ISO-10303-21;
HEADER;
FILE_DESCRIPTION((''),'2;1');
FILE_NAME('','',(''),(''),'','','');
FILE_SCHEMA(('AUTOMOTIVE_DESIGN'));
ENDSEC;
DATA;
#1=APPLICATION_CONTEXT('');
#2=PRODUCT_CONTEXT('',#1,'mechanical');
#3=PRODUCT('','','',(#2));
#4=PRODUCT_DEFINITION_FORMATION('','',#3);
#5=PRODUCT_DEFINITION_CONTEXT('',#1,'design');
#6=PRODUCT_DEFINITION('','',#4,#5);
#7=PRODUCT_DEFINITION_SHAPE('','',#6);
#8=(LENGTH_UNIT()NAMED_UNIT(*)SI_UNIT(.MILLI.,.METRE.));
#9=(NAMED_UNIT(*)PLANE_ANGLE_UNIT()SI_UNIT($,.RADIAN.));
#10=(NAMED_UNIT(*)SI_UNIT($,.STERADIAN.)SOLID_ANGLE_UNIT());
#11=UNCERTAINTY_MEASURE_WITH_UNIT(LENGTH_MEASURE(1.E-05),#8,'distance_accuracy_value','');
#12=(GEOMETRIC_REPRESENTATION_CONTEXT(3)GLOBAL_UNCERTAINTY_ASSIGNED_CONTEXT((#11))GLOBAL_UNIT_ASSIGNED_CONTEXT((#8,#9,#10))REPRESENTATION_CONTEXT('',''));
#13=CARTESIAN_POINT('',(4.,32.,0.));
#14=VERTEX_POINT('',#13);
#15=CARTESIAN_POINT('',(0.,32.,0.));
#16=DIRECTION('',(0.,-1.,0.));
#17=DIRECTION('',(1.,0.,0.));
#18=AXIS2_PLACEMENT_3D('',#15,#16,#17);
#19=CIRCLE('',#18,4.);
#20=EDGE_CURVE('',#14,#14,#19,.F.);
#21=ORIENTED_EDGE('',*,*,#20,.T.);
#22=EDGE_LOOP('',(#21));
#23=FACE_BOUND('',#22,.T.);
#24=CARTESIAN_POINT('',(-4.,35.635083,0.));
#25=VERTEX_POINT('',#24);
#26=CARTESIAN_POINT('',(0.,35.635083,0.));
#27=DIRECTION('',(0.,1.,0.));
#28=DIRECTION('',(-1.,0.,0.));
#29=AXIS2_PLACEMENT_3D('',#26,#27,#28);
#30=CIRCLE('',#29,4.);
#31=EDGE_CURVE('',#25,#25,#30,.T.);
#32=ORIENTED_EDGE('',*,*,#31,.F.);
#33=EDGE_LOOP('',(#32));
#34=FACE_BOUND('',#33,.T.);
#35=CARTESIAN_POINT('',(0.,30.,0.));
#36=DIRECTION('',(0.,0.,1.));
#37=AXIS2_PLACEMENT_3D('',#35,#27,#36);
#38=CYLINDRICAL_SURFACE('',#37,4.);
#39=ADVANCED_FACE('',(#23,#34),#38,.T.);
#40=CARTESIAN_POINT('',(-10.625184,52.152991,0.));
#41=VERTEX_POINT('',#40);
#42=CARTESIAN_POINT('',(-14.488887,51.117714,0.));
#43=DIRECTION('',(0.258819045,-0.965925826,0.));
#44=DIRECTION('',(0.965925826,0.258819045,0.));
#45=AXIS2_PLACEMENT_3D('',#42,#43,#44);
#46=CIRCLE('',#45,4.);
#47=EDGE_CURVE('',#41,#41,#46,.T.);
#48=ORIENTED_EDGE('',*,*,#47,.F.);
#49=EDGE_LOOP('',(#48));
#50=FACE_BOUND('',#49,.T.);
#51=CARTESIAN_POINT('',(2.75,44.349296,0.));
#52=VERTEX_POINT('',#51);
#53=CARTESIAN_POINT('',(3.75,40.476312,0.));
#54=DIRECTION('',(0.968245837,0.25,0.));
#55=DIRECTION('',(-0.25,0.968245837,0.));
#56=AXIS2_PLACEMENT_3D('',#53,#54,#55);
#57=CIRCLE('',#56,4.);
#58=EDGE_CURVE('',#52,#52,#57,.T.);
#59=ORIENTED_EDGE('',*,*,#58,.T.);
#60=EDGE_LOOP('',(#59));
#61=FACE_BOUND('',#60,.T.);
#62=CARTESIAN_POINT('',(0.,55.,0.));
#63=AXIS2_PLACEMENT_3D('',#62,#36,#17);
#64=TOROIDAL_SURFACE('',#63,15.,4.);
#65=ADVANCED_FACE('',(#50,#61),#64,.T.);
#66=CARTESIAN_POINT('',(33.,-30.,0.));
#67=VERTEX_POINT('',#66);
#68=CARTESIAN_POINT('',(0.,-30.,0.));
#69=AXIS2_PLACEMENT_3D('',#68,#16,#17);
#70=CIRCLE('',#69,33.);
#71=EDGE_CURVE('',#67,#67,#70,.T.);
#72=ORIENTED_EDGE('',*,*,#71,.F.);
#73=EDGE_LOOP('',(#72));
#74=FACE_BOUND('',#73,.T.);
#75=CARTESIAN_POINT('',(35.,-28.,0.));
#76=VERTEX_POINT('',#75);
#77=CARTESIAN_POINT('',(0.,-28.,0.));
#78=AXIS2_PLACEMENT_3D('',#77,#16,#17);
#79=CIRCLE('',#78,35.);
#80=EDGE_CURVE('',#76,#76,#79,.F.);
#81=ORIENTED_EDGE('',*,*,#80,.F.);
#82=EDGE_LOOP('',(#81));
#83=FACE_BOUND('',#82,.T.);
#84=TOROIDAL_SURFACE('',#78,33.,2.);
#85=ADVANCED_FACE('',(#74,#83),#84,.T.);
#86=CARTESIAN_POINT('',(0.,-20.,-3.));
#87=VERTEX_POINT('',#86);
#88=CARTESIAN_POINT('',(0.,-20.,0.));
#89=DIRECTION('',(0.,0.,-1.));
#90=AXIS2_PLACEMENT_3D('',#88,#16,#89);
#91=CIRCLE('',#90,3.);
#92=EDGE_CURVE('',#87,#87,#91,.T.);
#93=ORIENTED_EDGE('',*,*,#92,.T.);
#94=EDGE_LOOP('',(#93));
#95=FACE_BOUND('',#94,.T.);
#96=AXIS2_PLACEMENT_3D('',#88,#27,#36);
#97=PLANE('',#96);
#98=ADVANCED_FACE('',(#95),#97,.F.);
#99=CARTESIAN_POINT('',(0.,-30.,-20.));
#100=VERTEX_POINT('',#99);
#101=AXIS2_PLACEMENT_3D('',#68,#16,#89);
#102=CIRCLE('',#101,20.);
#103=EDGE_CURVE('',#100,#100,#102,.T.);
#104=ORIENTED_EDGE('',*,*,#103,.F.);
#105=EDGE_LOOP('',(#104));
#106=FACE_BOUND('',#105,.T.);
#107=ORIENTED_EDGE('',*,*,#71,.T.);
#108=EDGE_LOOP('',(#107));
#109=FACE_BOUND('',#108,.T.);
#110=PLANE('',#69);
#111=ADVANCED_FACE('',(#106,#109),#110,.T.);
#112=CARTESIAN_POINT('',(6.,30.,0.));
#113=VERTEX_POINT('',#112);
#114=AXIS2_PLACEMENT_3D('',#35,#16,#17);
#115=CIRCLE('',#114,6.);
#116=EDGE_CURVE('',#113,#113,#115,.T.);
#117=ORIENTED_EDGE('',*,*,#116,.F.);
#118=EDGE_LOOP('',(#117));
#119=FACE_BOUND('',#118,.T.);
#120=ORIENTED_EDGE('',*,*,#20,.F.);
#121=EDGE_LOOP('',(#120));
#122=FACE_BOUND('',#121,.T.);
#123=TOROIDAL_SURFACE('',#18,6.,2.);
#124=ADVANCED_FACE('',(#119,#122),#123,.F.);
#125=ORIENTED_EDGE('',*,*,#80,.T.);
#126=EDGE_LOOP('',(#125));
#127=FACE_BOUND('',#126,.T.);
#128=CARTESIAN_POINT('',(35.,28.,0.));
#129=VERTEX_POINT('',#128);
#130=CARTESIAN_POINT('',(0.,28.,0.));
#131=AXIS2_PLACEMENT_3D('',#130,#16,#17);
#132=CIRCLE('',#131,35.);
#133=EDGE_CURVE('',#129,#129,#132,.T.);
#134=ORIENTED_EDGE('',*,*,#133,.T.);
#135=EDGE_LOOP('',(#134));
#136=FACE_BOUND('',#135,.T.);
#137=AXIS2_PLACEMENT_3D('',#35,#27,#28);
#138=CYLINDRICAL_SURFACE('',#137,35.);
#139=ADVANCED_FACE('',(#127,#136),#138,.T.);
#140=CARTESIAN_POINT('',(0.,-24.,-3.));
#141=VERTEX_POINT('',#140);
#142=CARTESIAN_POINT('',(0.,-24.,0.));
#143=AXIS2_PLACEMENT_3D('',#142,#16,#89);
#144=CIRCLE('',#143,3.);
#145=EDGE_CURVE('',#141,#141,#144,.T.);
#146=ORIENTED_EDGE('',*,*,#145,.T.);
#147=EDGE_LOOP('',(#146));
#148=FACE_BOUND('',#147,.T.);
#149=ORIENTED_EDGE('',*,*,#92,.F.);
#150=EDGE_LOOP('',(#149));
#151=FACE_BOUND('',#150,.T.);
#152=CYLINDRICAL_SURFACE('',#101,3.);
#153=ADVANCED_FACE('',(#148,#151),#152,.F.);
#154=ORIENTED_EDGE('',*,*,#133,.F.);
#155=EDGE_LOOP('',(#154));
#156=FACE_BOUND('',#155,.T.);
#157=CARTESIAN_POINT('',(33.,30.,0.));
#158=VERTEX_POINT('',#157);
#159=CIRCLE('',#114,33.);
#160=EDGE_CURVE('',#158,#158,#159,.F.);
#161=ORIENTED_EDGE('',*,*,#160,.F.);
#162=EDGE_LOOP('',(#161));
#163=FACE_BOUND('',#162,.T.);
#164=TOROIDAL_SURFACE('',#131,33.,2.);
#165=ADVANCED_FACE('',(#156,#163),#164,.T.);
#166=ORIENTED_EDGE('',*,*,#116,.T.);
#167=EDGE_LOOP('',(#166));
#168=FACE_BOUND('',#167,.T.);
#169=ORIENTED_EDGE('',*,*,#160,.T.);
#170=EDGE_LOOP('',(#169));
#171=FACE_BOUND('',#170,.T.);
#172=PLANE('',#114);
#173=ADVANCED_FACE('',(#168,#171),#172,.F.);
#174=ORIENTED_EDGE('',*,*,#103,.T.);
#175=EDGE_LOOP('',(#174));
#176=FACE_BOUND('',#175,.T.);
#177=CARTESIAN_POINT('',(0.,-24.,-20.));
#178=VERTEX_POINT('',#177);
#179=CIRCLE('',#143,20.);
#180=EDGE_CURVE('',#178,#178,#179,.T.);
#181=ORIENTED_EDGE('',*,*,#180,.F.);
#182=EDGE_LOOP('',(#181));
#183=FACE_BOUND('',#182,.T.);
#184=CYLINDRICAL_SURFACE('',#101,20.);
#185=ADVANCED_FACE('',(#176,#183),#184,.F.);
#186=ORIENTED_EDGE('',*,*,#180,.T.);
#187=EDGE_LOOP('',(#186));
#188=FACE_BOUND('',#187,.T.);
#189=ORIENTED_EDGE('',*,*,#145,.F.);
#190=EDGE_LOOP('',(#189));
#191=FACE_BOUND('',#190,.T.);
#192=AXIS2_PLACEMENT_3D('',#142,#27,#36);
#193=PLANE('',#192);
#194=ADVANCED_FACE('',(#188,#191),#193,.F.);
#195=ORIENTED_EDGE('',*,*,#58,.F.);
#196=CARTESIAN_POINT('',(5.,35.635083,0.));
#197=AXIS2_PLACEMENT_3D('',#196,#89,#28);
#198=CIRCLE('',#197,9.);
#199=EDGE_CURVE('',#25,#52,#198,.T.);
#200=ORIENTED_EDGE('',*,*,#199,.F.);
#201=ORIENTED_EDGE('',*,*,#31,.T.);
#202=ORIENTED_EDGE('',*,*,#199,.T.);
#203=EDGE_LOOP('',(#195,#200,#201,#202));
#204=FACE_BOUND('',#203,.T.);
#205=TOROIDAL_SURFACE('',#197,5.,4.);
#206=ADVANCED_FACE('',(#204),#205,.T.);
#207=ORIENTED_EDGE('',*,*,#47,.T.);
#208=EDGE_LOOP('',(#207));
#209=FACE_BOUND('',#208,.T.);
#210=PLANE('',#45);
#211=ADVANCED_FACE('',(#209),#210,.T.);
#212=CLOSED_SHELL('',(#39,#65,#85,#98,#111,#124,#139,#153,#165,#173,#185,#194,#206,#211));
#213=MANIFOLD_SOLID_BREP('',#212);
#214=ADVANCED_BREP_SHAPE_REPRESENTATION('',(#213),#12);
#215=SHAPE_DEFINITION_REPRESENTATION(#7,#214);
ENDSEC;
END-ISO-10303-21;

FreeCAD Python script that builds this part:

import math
import FreeCAD as App
import Part
import Sketcher
Q = App.Units.Quantity


def edges_at(feature, points):
    """Names of the edges that pass closest to the given points."""
    edges = feature.Shape.Edges
    near = lambda p: min(range(len(edges)), key=lambda i: edges[i].distToShape(Part.Vertex(*p))[0])
    return sorted({f"Edge{near(p) + 1}" for p in points})


def add_polygon(sketch, points):
    """Adds a closed chain of lines whose ends are joined by coincident constraints."""
    first, n = sketch.GeometryCount, len(points)
    for a, b in zip(points, points[1:] + points[:1]):
        sketch.addGeometry(Part.LineSegment(App.Vector(*a, 0), App.Vector(*b, 0)), False)
    for i in range(n):
        sketch.addConstraint(Sketcher.Constraint("Coincident", first + i, 2, first + (i + 1) % n, 1))

doc = App.newDocument("Part")
body = doc.addObject("PartDesign::Body", "Body")

sketch1 = body.newObject("Sketcher::SketchObject", "Sketch")
sketch1.AttachmentSupport = (doc.getObject("XY_Plane"), [""])
sketch1.MapMode = "FlatFace"
add_polygon(sketch1, [(0, 30), (0, -30), (35, -30), (35, 30)])
sketch1.addConstraint(Sketcher.Constraint("Vertical", 0))
sketch1.addConstraint(Sketcher.Constraint("Horizontal", 1))
sketch1.addConstraint(Sketcher.Constraint("Vertical", 2))
sketch1.addConstraint(Sketcher.Constraint("Horizontal", 3))
sketch1.addConstraint(Sketcher.Constraint("Symmetric", 0, 2, 3, 2, -1, 1))
sketch1.addConstraint(Sketcher.Constraint("DistanceX", 1, 1, 1, 2, Q("35 mm")))
sketch1.addConstraint(Sketcher.Constraint("DistanceY", 0, 2, 0, 1, Q("60 mm")))
revolution = body.newObject("PartDesign::Revolution", "Revolution")
revolution.Profile = sketch1
revolution.ReferenceAxis = (sketch1, ["V_Axis"])
revolution.Angle = 360
doc.recompute()

fillet = body.newObject("PartDesign::Fillet", "Fillet")
fillet.Base = (revolution, edges_at(revolution, [(35, -30, 0), (35, 30, 0)]))
fillet.Radius = 2

sketch2 = body.newObject("Sketcher::SketchObject", "Sketch001")
sketch2.AttachmentSupport = (doc.getObject("XZ_Plane"), [""])
sketch2.MapMode = "FlatFace"
sketch2.AttachmentOffset = App.Placement(App.Vector(0, 0, -30), App.Rotation())
sketch2.addGeometry(Part.Circle(App.Vector(0, 0, 0), App.Vector(0, 0, 1), 4), False)
sketch2.addConstraint(Sketcher.Constraint("Coincident", 0, 3, -1, 1))
sketch2.addConstraint(Sketcher.Constraint("Diameter", 0, Q("8 mm")))

sketch3 = body.newObject("Sketcher::SketchObject", "Sketch002")
sketch3.AttachmentSupport = (doc.getObject("XY_Plane"), [""])
sketch3.MapMode = "FlatFace"
sketch3.addGeometry(Part.LineSegment(App.Vector(0, 30, 0), App.Vector(0, 36, 0)), False)
sketch3.addGeometry(Part.ArcOfCircle(Part.Circle(App.Vector(5, 36, 0), App.Vector(0, 0, 1), 5), math.radians(104), math.radians(180)), False)
sketch3.addGeometry(Part.ArcOfCircle(Part.Circle(App.Vector(0, 55, 0), App.Vector(0, 0, 1), 15), math.radians(-76), math.radians(195)), False)
sketch3.addConstraint(Sketcher.Constraint("Tangent", 0, 2, 1, 2))
sketch3.addConstraint(Sketcher.Constraint("Tangent", 1, 1, 2, 1))
sketch3.addConstraint(Sketcher.Constraint("Vertical", 0))
sketch3.addConstraint(Sketcher.Constraint("PointOnObject", 2, 3, -2))
sketch3.addConstraint(Sketcher.Constraint("PointOnObject", 0, 1, -2))
sketch3.addConstraint(Sketcher.Constraint("Radius", 1, Q("5 mm")))
sketch3.addConstraint(Sketcher.Constraint("Radius", 2, Q("15 mm")))
sketch3.addConstraint(Sketcher.Constraint("DistanceY", -1, 1, 2, 3, Q("55 mm")))
sketch3.addConstraint(Sketcher.Constraint("DistanceY", -1, 1, 0, 1, Q("30 mm")))
sketch3.addConstraint(Sketcher.Constraint("DistanceY", 1, 1, 2, 2, Q("10.641402 mm")))
doc.recompute()

additivepipe = body.newObject("PartDesign::AdditivePipe", "AdditivePipe")
additivepipe.Profile = sketch2
additivepipe.Spine = (sketch3, ["Edge1", "Edge2", "Edge3"])
doc.recompute()

fillet2 = body.newObject("PartDesign::Fillet", "Fillet001")
fillet2.Base = (additivepipe, edges_at(additivepipe, [(-4, 30, 0)]))
fillet2.Radius = 2

sketch4 = body.newObject("Sketcher::SketchObject", "Sketch003")
sketch4.AttachmentSupport = (doc.getObject("YZ_Plane"), [""])
sketch4.MapMode = "FlatFace"
add_polygon(sketch4, [(-24, 20), (-30, 20), (-30, 0), (-20, 0), (-20, 3), (-24, 3)])
sketch4.addConstraint(Sketcher.Constraint("Horizontal", 0))
sketch4.addConstraint(Sketcher.Constraint("Vertical", 1))
sketch4.addConstraint(Sketcher.Constraint("Horizontal", 2))
sketch4.addConstraint(Sketcher.Constraint("Vertical", 3))
sketch4.addConstraint(Sketcher.Constraint("Horizontal", 4))
sketch4.addConstraint(Sketcher.Constraint("Vertical", 5))
sketch4.addConstraint(Sketcher.Constraint("PointOnObject", 1, 2, -1))
sketch4.addConstraint(Sketcher.Constraint("DistanceX", 0, 2, 0, 1, Q("6 mm")))
sketch4.addConstraint(Sketcher.Constraint("DistanceX", 2, 1, 2, 2, Q("10 mm")))
sketch4.addConstraint(Sketcher.Constraint("DistanceY", 1, 2, 1, 1, Q("20 mm")))
sketch4.addConstraint(Sketcher.Constraint("DistanceY", 3, 1, 3, 2, Q("3 mm")))
sketch4.addConstraint(Sketcher.Constraint("DistanceX", 0, 2, -1, 1, Q("30 mm")))
groove = body.newObject("PartDesign::Groove", "Groove")
groove.Profile = sketch4
groove.ReferenceAxis = (sketch4, ["H_Axis"])
groove.Angle = 360

doc.recompute()
